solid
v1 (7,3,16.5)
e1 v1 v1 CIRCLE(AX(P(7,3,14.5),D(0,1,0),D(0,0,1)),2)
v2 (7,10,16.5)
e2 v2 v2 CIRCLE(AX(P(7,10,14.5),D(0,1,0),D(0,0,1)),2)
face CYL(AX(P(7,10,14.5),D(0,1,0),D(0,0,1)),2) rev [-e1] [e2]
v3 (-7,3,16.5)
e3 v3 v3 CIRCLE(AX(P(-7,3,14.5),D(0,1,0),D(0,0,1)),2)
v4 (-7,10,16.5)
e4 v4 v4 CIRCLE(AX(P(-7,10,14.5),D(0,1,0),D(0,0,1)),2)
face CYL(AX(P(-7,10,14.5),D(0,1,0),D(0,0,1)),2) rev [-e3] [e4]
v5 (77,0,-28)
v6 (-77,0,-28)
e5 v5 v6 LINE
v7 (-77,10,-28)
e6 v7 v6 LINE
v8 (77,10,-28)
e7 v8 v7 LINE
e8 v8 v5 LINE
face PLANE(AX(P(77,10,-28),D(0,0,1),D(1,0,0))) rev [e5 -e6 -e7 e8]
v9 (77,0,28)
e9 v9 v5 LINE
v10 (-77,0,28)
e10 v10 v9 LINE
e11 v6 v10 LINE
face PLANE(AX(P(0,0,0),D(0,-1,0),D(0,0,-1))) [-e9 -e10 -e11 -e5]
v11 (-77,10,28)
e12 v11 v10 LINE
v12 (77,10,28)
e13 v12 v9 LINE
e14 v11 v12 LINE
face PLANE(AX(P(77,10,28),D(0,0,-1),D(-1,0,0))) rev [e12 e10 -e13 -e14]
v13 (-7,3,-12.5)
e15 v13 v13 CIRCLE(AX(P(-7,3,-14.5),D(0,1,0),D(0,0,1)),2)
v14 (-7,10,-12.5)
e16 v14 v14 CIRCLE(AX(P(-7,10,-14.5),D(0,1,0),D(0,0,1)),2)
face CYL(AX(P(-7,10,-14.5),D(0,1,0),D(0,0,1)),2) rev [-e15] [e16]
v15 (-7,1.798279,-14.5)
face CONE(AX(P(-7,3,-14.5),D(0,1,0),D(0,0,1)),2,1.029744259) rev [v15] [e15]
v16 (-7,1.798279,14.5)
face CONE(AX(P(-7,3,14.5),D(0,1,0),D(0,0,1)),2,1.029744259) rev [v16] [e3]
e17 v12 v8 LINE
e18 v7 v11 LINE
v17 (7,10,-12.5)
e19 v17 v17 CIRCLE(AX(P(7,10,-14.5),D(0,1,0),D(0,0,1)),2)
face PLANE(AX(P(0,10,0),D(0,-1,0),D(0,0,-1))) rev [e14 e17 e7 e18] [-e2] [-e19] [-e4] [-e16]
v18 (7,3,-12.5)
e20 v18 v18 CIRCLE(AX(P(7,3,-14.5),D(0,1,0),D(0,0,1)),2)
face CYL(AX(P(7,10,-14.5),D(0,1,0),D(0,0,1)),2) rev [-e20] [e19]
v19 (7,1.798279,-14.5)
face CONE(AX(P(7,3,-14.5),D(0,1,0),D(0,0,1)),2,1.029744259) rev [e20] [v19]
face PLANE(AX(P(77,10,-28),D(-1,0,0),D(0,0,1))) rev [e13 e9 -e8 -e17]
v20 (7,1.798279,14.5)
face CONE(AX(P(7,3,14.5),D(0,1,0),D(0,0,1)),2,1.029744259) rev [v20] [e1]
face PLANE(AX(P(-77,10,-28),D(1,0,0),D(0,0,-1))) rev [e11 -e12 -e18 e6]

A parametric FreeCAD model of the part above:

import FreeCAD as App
import Part
import Sketcher
Q = App.Units.Quantity


def add_polygon(sketch, points):
    """Adds a closed chain of lines whose ends are joined by coincident constraints."""
    first, n = sketch.GeometryCount, len(points)
    for a, b in zip(points, points[1:] + points[:1]):
        sketch.addGeometry(Part.LineSegment(App.Vector(*a, 0), App.Vector(*b, 0)), False)
    for i in range(n):
        sketch.addConstraint(Sketcher.Constraint("Coincident", first + i, 2, first + (i + 1) % n, 1))

doc = App.newDocument("Part")
body = doc.addObject("PartDesign::Body", "Body")

sketch1 = body.newObject("Sketcher::SketchObject", "Sketch")
sketch1.AttachmentSupport = (doc.getObject("XZ_Plane"), [""])
sketch1.MapMode = "FlatFace"
add_polygon(sketch1, [(-77, -28), (-77, 28), (77, 28), (77, -28)])
sketch1.addConstraint(Sketcher.Constraint("Vertical", 0))
sketch1.addConstraint(Sketcher.Constraint("Horizontal", 1))
sketch1.addConstraint(Sketcher.Constraint("Vertical", 2))
sketch1.addConstraint(Sketcher.Constraint("Horizontal", 3))
sketch1.addConstraint(Sketcher.Constraint("Symmetric", 0, 2, 2, 2, -1, 1))
sketch1.addConstraint(Sketcher.Constraint("DistanceX", 1, 1, 1, 2, Q("154 mm")))
sketch1.addConstraint(Sketcher.Constraint("DistanceY", 0, 1, 0, 2, Q("56 mm")))
pad1 = body.newObject("PartDesign::Pad", "Pad")
pad1.Profile = sketch1
pad1.Length = 10
pad1.Reversed = True

sketch2 = body.newObject("Sketcher::SketchObject", "Sketch001")
sketch2.AttachmentSupport = (doc.getObject("XZ_Plane"), [""])
sketch2.MapMode = "FlatFace"
sketch2.AttachmentOffset = App.Placement(App.Vector(0, 0, -10), App.Rotation())
sketch2.addGeometry(Part.Circle(App.Vector(-7, -14.5, 0), App.Vector(0, 0, 1), 2), False)
sketch2.addGeometry(Part.Circle(App.Vector(-7, 14.5, 0), App.Vector(0, 0, 1), 2), False)
sketch2.addGeometry(Part.Circle(App.Vector(7, 14.5, 0), App.Vector(0, 0, 1), 2), False)
sketch2.addGeometry(Part.Circle(App.Vector(7, -14.5, 0), App.Vector(0, 0, 1), 2), False)
sketch2.addConstraint(Sketcher.Constraint("Equal", 0, 1))
sketch2.addConstraint(Sketcher.Constraint("Equal", 1, 2))
sketch2.addConstraint(Sketcher.Constraint("Equal", 2, 3))
sketch2.addConstraint(Sketcher.Constraint("Symmetric", 0, 3, 2, 3, -1, 1))
sketch2.addConstraint(Sketcher.Constraint("Symmetric", 1, 3, 3, 3, -1, 1))
sketch2.addConstraint(Sketcher.Constraint("Symmetric", 1, 3, 2, 3, -2))
sketch2.addConstraint(Sketcher.Constraint("Diameter", 0, Q("4 mm")))
sketch2.addConstraint(Sketcher.Constraint("DistanceX", 0, 3, -1, 1, Q("7 mm")))
sketch2.addConstraint(Sketcher.Constraint("DistanceY", 0, 3, 1, 3, Q("29 mm")))
doc.recompute()
hole = body.newObject("PartDesign::Hole", "Hole")
hole.Profile = sketch2
hole.ThreadType = "None"
hole.Diameter = 4
hole.DepthType = "Dimension"
hole.Depth = 7
hole.DrillPoint = "Angled"
hole.DrillPointAngle = 118
hole.Reversed = True

doc.recompute()
